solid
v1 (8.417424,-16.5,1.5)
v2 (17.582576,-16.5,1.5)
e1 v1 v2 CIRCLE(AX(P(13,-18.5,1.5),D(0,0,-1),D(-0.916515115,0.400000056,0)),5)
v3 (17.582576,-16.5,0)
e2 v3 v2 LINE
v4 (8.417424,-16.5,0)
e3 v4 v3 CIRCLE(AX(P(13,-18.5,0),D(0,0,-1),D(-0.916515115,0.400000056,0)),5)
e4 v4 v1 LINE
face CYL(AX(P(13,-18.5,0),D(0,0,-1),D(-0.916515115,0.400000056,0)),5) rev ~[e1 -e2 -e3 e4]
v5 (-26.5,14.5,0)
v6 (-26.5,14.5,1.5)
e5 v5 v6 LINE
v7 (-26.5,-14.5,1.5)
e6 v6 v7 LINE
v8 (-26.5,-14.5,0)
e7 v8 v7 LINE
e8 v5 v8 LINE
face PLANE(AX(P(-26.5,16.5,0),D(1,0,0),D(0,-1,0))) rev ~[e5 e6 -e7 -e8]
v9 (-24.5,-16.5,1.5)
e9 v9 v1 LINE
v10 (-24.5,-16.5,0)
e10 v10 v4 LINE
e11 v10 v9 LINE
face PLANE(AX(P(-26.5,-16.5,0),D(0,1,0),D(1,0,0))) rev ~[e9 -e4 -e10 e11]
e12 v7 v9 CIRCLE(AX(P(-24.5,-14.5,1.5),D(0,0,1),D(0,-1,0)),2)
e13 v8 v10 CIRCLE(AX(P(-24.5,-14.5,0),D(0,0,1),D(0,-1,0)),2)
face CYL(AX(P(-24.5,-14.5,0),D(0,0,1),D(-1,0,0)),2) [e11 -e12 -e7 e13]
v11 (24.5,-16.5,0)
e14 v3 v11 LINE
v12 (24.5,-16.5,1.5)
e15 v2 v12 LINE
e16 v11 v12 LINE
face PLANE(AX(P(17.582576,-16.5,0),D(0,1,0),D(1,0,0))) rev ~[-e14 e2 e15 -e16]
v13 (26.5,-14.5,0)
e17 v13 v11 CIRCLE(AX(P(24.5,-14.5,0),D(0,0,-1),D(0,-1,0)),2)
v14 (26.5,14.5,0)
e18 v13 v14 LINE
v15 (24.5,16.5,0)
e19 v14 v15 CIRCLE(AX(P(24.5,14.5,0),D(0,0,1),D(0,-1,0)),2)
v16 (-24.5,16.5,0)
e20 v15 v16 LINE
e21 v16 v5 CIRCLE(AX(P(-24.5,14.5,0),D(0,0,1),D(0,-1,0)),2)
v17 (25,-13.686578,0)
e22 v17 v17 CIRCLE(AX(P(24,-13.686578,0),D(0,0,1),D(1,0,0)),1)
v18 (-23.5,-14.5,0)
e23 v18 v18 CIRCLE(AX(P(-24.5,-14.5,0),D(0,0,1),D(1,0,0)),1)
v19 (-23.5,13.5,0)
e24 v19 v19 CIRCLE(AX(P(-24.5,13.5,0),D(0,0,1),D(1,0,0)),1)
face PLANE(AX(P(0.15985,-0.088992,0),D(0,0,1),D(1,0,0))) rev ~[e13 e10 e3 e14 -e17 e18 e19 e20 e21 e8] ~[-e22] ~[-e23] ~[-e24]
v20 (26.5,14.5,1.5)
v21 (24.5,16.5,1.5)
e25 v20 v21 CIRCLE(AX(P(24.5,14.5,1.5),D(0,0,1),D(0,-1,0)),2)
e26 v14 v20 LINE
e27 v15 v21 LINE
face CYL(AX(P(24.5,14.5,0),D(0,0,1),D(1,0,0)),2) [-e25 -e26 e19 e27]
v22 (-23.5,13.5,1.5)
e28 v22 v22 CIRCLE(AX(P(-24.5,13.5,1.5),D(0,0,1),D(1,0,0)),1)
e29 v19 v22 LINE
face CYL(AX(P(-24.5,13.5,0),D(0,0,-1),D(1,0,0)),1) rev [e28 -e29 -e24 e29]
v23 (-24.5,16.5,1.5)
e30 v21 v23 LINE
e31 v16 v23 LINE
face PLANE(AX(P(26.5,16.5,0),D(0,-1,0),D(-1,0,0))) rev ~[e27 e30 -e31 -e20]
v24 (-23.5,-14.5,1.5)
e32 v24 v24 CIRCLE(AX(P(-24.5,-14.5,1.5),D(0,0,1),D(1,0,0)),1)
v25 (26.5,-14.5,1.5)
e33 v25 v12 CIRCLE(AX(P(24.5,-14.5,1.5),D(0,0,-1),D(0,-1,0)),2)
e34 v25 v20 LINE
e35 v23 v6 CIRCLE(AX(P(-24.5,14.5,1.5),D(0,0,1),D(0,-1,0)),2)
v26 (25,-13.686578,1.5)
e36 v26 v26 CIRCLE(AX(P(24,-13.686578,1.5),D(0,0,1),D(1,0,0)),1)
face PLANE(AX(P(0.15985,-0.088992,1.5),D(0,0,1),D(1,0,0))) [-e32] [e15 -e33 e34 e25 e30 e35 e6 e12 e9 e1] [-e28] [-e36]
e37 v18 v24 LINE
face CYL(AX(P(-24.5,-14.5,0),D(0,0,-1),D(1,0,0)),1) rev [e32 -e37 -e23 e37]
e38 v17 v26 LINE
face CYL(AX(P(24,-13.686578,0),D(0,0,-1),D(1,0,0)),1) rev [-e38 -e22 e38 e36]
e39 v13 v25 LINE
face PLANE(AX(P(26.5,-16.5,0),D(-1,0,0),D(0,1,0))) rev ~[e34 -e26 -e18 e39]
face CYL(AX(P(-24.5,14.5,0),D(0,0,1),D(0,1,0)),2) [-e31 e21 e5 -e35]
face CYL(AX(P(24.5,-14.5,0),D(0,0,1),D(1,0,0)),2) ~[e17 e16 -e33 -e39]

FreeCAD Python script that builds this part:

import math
import FreeCAD as App
import Part
import Sketcher
from FreeCAD import Vector
Q = App.Units.Quantity


def edges_at(feature, points):
    """Names of the edges that pass closest to the given points."""
    edges = feature.Shape.Edges
    near = lambda p: min(range(len(edges)), key=lambda i: edges[i].distToShape(Part.Vertex(*p))[0])
    return sorted({f"Edge{near(p) + 1}" for p in points})

doc = App.newDocument("Part")
body = doc.addObject("PartDesign::Body", "Body")

sketch1 = body.newObject("Sketcher::SketchObject", "Sketch")
sketch1.AttachmentSupport = (doc.getObject("XY_Plane"), [""])
sketch1.MapMode = "FlatFace"
sketch1.addGeometry([
    Part.LineSegment(Vector(26.5, -16.5, 0), Vector(26.5, 16.5, 0)),
    Part.LineSegment(Vector(26.5, 16.5, 0), Vector(-26.5, 16.5, 0)),
    Part.LineSegment(Vector(-26.5, 16.5, 0), Vector(-26.5, -16.5, 0)),
    Part.LineSegment(Vector(-26.5, -16.5, 0), Vector(8.417424, -16.5, 0)),
    Part.ArcOfCircle(Part.Circle(Vector(13, -18.5, 0), Vector(0, 0, 1), 5), math.radians(23.578182), math.radians(156.421818)),
    Part.LineSegment(Vector(17.582576, -16.5, 0), Vector(26.5, -16.5, 0)),
    Part.Circle(Vector(-24.5, -14.5, 0), Vector(0, 0, 1), 1),
    Part.Circle(Vector(24, -13.686578, 0), Vector(0, 0, 1), 1),
    Part.Circle(Vector(-24.5, 13.5, 0), Vector(0, 0, 1), 1),
], False)
sketch1.addConstraint([
    Sketcher.Constraint("Coincident", 0, 2, 1, 1),
    Sketcher.Constraint("Coincident", 1, 2, 2, 1),
    Sketcher.Constraint("Coincident", 2, 2, 3, 1),
    Sketcher.Constraint("Coincident", 3, 2, 4, 2),
    Sketcher.Constraint("Coincident", 4, 1, 5, 1),
    Sketcher.Constraint("Coincident", 5, 2, 0, 1),
    Sketcher.Constraint("Vertical", 0),
    Sketcher.Constraint("Horizontal", 1),
    Sketcher.Constraint("Vertical", 2),
    Sketcher.Constraint("Horizontal", 3),
    Sketcher.Constraint("Horizontal", 5),
    Sketcher.Constraint("Equal", 6, 7),
    Sketcher.Constraint("Equal", 7, 8),
    Sketcher.Constraint("Symmetric", 0, 2, 2, 2, -1, 1),
    Sketcher.Constraint("Horizontal", 3, 2, 4, 1),
    Sketcher.Constraint("Vertical", 6, 3, 8, 3),
    Sketcher.Constraint("Diameter", 6, Q("2 mm")),
    Sketcher.Constraint("Radius", 4, Q("5 mm")),
    Sketcher.Constraint("DistanceX", 1, 2, 1, 1, Q("53 mm")),
    Sketcher.Constraint("DistanceY", 0, 1, 0, 2, Q("33 mm")),
    Sketcher.Constraint("DistanceX", -1, 1, 4, 3, Q("13 mm")),
    Sketcher.Constraint("DistanceX", -1, 1, 7, 3, Q("24 mm")),
    Sketcher.Constraint("DistanceY", 4, 3, 6, 3, Q("4 mm")),
    Sketcher.Constraint("DistanceY", 6, 3, 8, 3, Q("28 mm")),
    Sketcher.Constraint("DistanceY", 4, 3, 0, 2, Q("35 mm")),
    Sketcher.Constraint("DistanceX", 8, 3, 0, 2, Q("51 mm")),
    Sketcher.Constraint("DistanceY", 7, 3, -1, 1, Q("13.686578 mm")),
])
pad1 = body.newObject("PartDesign::Pad", "Pad")
pad1.Profile = sketch1
pad1.Length = 1.5
doc.recompute()

fillet = body.newObject("PartDesign::Fillet", "Fillet")
fillet.Base = (pad1, edges_at(pad1, [
    (-26.5, -16.5, 0.75),
    (26.5, -16.5, 0.75),
    (26.5, 16.5, 0.75),
    (-26.5, 16.5, 0.75),
]))
fillet.Radius = 2

doc.recompute()
